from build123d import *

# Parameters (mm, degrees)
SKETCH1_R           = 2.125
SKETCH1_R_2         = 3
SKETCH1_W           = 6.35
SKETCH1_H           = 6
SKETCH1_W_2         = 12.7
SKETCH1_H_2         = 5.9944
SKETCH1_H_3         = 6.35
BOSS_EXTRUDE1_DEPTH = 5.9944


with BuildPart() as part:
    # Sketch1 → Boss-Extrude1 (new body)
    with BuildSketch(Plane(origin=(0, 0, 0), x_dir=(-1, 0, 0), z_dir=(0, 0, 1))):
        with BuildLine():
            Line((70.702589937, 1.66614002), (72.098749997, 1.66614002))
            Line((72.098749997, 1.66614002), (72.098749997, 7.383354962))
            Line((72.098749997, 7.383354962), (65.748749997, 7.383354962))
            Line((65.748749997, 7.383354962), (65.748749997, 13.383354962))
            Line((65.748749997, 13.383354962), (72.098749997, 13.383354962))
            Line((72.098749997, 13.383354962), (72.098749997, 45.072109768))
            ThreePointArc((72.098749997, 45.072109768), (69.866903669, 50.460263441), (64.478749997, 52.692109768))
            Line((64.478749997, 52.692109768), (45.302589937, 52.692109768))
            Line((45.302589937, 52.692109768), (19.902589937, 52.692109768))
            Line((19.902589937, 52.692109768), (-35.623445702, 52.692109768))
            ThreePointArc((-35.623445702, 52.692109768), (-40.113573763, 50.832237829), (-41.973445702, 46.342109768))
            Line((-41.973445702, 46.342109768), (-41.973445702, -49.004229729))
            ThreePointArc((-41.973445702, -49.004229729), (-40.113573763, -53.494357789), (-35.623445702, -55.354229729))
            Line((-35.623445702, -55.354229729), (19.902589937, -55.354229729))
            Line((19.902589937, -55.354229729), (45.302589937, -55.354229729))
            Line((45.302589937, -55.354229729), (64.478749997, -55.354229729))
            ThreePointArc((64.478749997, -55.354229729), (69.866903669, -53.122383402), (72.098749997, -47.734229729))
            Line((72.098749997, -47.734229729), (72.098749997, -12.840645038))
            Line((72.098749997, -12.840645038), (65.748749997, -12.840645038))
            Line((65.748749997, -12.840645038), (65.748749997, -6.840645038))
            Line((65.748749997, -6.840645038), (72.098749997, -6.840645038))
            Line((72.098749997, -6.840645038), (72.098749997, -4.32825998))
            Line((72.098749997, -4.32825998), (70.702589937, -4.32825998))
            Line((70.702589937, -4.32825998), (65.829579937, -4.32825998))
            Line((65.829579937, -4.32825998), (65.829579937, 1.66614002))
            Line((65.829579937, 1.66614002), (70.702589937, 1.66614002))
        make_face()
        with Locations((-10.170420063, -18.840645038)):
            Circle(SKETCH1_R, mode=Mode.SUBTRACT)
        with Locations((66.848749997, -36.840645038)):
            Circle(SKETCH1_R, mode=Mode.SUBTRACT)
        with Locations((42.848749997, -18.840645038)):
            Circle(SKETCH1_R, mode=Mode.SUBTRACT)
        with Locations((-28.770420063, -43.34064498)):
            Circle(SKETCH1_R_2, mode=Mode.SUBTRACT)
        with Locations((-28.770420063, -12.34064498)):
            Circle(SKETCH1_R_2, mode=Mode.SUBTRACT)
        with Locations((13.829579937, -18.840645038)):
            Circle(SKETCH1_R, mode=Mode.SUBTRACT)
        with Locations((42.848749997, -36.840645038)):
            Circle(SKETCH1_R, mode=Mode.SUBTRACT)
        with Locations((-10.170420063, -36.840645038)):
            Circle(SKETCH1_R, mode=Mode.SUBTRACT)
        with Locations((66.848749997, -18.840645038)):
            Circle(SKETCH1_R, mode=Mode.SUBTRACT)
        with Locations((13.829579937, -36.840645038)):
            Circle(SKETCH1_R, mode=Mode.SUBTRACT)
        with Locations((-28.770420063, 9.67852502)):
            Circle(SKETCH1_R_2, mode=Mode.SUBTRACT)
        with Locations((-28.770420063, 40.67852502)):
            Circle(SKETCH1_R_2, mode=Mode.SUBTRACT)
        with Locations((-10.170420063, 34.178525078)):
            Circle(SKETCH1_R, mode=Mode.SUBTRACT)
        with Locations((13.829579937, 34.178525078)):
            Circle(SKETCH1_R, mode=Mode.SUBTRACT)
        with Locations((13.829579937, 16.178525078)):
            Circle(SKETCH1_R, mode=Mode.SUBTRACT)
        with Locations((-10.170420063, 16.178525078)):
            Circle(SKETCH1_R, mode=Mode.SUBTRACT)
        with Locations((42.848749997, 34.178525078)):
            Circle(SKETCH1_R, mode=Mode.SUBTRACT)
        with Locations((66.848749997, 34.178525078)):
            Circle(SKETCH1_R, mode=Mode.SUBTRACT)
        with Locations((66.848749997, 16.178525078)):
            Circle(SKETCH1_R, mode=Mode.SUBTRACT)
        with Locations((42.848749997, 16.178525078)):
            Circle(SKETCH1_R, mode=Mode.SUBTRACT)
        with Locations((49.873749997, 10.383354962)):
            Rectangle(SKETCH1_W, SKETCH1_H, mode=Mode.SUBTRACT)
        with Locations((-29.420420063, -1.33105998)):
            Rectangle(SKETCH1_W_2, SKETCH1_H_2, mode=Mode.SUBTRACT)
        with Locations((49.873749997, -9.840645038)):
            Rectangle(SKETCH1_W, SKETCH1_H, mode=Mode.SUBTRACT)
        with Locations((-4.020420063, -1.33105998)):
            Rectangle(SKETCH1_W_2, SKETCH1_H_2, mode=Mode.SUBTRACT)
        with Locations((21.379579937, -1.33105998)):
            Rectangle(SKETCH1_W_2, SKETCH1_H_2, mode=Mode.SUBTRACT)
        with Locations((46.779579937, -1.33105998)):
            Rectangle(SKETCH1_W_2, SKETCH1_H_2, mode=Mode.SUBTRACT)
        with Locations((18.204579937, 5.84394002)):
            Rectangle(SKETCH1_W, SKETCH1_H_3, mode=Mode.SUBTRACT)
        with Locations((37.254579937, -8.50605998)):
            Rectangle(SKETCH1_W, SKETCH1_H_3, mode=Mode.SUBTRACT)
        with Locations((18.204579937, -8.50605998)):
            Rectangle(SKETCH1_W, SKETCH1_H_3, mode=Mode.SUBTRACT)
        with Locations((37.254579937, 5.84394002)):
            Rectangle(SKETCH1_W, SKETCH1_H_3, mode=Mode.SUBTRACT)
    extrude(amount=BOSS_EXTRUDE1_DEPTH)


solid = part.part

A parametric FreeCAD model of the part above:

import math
import FreeCAD as App
import Part
import Sketcher
from FreeCAD import Vector
Q = App.Units.Quantity

doc = App.newDocument("Part")
body = doc.addObject("PartDesign::Body", "Body")

sketch1 = doc.addObject("Sketcher::SketchObject", "Sketch")
body.addObject(sketch1)
sketch1.AttachmentSupport = (doc.XY_Plane, [""])
sketch1.MapMode = "FlatFace"
sketch1.addGeometry([
    Part.LineSegment(Vector(-72.1, -1.7, 0), Vector(-72.1, -7.4, 0)),
    Part.LineSegment(Vector(-72.1, -7.4, 0), Vector(-65.7, -7.4, 0)),
    Part.LineSegment(Vector(-65.7, -7.4, 0), Vector(-65.7, -13.4, 0)),
    Part.LineSegment(Vector(-65.7, -13.4, 0), Vector(-72.1, -13.4, 0)),
    Part.LineSegment(Vector(-72.1, -13.4, 0), Vector(-72.1, -45.1, 0)),
    Part.ArcOfCircle(Part.Circle(Vector(-64.5, -45.1, 0), Vector(0, 0, 1), 7.6), math.radians(180), math.radians(270)),
    Part.LineSegment(Vector(-64.5, -52.7, 0), Vector(35.6, -52.7, 0)),
    Part.ArcOfCircle(Part.Circle(Vector(35.6, -46.3, 0), Vector(0, 0, 1), 6.3), math.radians(-90), math.radians(0)),
    Part.LineSegment(Vector(42, -46.3, 0), Vector(42, 49, 0)),
    Part.ArcOfCircle(Part.Circle(Vector(35.6, 49, 0), Vector(0, 0, 1), 6.3), math.radians(0), math.radians(90)),
    Part.LineSegment(Vector(35.6, 55.4, 0), Vector(-64.5, 55.4, 0)),
    Part.ArcOfCircle(Part.Circle(Vector(-64.5, 47.7, 0), Vector(0, 0, 1), 7.6), math.radians(90), math.radians(180)),
    Part.LineSegment(Vector(-72.1, 47.7, 0), Vector(-72.1, 12.8, 0)),
    Part.LineSegment(Vector(-72.1, 12.8, 0), Vector(-65.7, 12.8, 0)),
    Part.LineSegment(Vector(-65.7, 12.8, 0), Vector(-65.7, 6.8, 0)),
    Part.LineSegment(Vector(-65.7, 6.8, 0), Vector(-72.1, 6.8, 0)),
    Part.LineSegment(Vector(-72.1, 6.8, 0), Vector(-72.1, 4.3, 0)),
    Part.LineSegment(Vector(-72.1, 4.3, 0), Vector(-65.8, 4.3, 0)),
    Part.LineSegment(Vector(-65.8, 4.3, 0), Vector(-65.8, -1.7, 0)),
    Part.LineSegment(Vector(-65.8, -1.7, 0), Vector(-72.1, -1.7, 0)),
    Part.Circle(Vector(28.8, 43.3, 0), Vector(0, 0, 1), 3),
    Part.Circle(Vector(10.2, 36.8, 0), Vector(0, 0, 1), 2.1),
    Part.Circle(Vector(-13.8, 36.8, 0), Vector(0, 0, 1), 2.1),
    Part.Circle(Vector(10.2, 18.8, 0), Vector(0, 0, 1), 2.1),
    Part.Circle(Vector(28.8, 12.3, 0), Vector(0, 0, 1), 3),
    Part.LineSegment(Vector(23.1, 4.3, 0), Vector(35.8, 4.3, 0)),
    Part.LineSegment(Vector(35.8, 4.3, 0), Vector(35.8, -1.7, 0)),
    Part.LineSegment(Vector(35.8, -1.7, 0), Vector(23.1, -1.7, 0)),
    Part.LineSegment(Vector(23.1, -1.7, 0), Vector(23.1, 4.3, 0)),
    Part.Circle(Vector(-13.8, 18.8, 0), Vector(0, 0, 1), 2.1),
    Part.LineSegment(Vector(-2.3, 4.3, 0), Vector(10.4, 4.3, 0)),
    Part.LineSegment(Vector(10.4, 4.3, 0), Vector(10.4, -1.7, 0)),
    Part.LineSegment(Vector(10.4, -1.7, 0), Vector(-2.3, -1.7, 0)),
    Part.LineSegment(Vector(-2.3, -1.7, 0), Vector(-2.3, 4.3, 0)),
    Part.Circle(Vector(-42.8, 36.8, 0), Vector(0, 0, 1), 2.1),
    Part.Circle(Vector(-66.8, 36.8, 0), Vector(0, 0, 1), 2.1),
    Part.LineSegment(Vector(-21.4, 11.7, 0), Vector(-15, 11.7, 0)),
    Part.LineSegment(Vector(-15, 11.7, 0), Vector(-15, 5.3, 0)),
    Part.LineSegment(Vector(-15, 5.3, 0), Vector(-21.4, 5.3, 0)),
    Part.LineSegment(Vector(-21.4, 5.3, 0), Vector(-21.4, 11.7, 0)),
    Part.LineSegment(Vector(-27.7, 4.3, 0), Vector(-15, 4.3, 0)),
    Part.LineSegment(Vector(-15, 4.3, 0), Vector(-15, -1.7, 0)),
    Part.LineSegment(Vector(-15, -1.7, 0), Vector(-27.7, -1.7, 0)),
    Part.LineSegment(Vector(-27.7, -1.7, 0), Vector(-27.7, 4.3, 0)),
    Part.LineSegment(Vector(-40.4, 11.7, 0), Vector(-34.1, 11.7, 0)),
    Part.LineSegment(Vector(-34.1, 11.7, 0), Vector(-34.1, 5.3, 0)),
    Part.LineSegment(Vector(-34.1, 5.3, 0), Vector(-40.4, 5.3, 0)),
    Part.LineSegment(Vector(-40.4, 5.3, 0), Vector(-40.4, 11.7, 0)),
    Part.Circle(Vector(-42.8, 18.8, 0), Vector(0, 0, 1), 2.1),
    Part.Circle(Vector(-66.8, 18.8, 0), Vector(0, 0, 1), 2.1),
    Part.LineSegment(Vector(-53, 12.8, 0), Vector(-46.7, 12.8, 0)),
    Part.LineSegment(Vector(-46.7, 12.8, 0), Vector(-46.7, 6.8, 0)),
    Part.LineSegment(Vector(-46.7, 6.8, 0), Vector(-53, 6.8, 0)),
    Part.LineSegment(Vector(-53, 6.8, 0), Vector(-53, 12.8, 0)),
    Part.LineSegment(Vector(-53.1, 4.3, 0), Vector(-40.4, 4.3, 0)),
    Part.LineSegment(Vector(-40.4, 4.3, 0), Vector(-40.4, -1.7, 0)),
    Part.LineSegment(Vector(-40.4, -1.7, 0), Vector(-53.1, -1.7, 0)),
    Part.LineSegment(Vector(-53.1, -1.7, 0), Vector(-53.1, 4.3, 0)),
    Part.Circle(Vector(28.8, -9.7, 0), Vector(0, 0, 1), 3),
    Part.Circle(Vector(10.2, -16.2, 0), Vector(0, 0, 1), 2.1),
    Part.Circle(Vector(-13.8, -16.2, 0), Vector(0, 0, 1), 2.1),
    Part.Circle(Vector(28.8, -40.7, 0), Vector(0, 0, 1), 3),
    Part.Circle(Vector(10.2, -34.2, 0), Vector(0, 0, 1), 2.1),
    Part.Circle(Vector(-13.8, -34.2, 0), Vector(0, 0, 1), 2.1),
    Part.LineSegment(Vector(-21.4, -2.7, 0), Vector(-15, -2.7, 0)),
    Part.LineSegment(Vector(-15, -2.7, 0), Vector(-15, -9, 0)),
    Part.LineSegment(Vector(-15, -9, 0), Vector(-21.4, -9, 0)),
    Part.LineSegment(Vector(-21.4, -9, 0), Vector(-21.4, -2.7, 0)),
    Part.LineSegment(Vector(-40.4, -2.7, 0), Vector(-34.1, -2.7, 0)),
    Part.LineSegment(Vector(-34.1, -2.7, 0), Vector(-34.1, -9, 0)),
    Part.LineSegment(Vector(-34.1, -9, 0), Vector(-40.4, -9, 0)),
    Part.LineSegment(Vector(-40.4, -9, 0), Vector(-40.4, -2.7, 0)),
    Part.LineSegment(Vector(-53, -7.4, 0), Vector(-46.7, -7.4, 0)),
    Part.LineSegment(Vector(-46.7, -7.4, 0), Vector(-46.7, -13.4, 0)),
    Part.LineSegment(Vector(-46.7, -13.4, 0), Vector(-53, -13.4, 0)),
    Part.LineSegment(Vector(-53, -13.4, 0), Vector(-53, -7.4, 0)),
    Part.Circle(Vector(-42.8, -16.2, 0), Vector(0, 0, 1), 2.1),
    Part.Circle(Vector(-66.8, -16.2, 0), Vector(0, 0, 1), 2.1),
    Part.Circle(Vector(-42.8, -34.2, 0), Vector(0, 0, 1), 2.1),
    Part.Circle(Vector(-66.8, -34.2, 0), Vector(0, 0, 1), 2.1),
], False)
sketch1.addConstraint([
    Sketcher.Constraint("Coincident", 0, 2, 1, 1),
    Sketcher.Constraint("Coincident", 1, 2, 2, 1),
    Sketcher.Constraint("Coincident", 2, 2, 3, 1),
    Sketcher.Constraint("Coincident", 3, 2, 4, 1),
    Sketcher.Constraint("Tangent", 4, 2, 5, 1),
    Sketcher.Constraint("Tangent", 5, 2, 6, 1),
    Sketcher.Constraint("Tangent", 6, 2, 7, 1),
    Sketcher.Constraint("Tangent", 7, 2, 8, 1),
    Sketcher.Constraint("Tangent", 8, 2, 9, 1),
    Sketcher.Constraint("Tangent", 9, 2, 10, 1),
    Sketcher.Constraint("Tangent", 10, 2, 11, 1),
    Sketcher.Constraint("Tangent", 11, 2, 12, 1),
    Sketcher.Constraint("Coincident", 12, 2, 13, 1),
    Sketcher.Constraint("Coincident", 13, 2, 14, 1),
    Sketcher.Constraint("Coincident", 14, 2, 15, 1),
    Sketcher.Constraint("Coincident", 15, 2, 16, 1),
    Sketcher.Constraint("Coincident", 16, 2, 17, 1),
    Sketcher.Constraint("Coincident", 17, 2, 18, 1),
    Sketcher.Constraint("Coincident", 18, 2, 19, 1),
    Sketcher.Constraint("Coincident", 19, 2, 0, 1),
    Sketcher.Constraint("Coincident", 25, 2, 26, 1),
    Sketcher.Constraint("Coincident", 26, 2, 27, 1),
    Sketcher.Constraint("Coincident", 27, 2, 28, 1),
    Sketcher.Constraint("Coincident", 28, 2, 25, 1),
    Sketcher.Constraint("Coincident", 30, 2, 31, 1),
    Sketcher.Constraint("Coincident", 31, 2, 32, 1),
    Sketcher.Constraint("Coincident", 32, 2, 33, 1),
    Sketcher.Constraint("Coincident", 33, 2, 30, 1),
    Sketcher.Constraint("Coincident", 36, 2, 37, 1),
    Sketcher.Constraint("Coincident", 37, 2, 38, 1),
    Sketcher.Constraint("Coincident", 38, 2, 39, 1),
    Sketcher.Constraint("Coincident", 39, 2, 36, 1),
    Sketcher.Constraint("Coincident", 40, 2, 41, 1),
    Sketcher.Constraint("Coincident", 41, 2, 42, 1),
    Sketcher.Constraint("Coincident", 42, 2, 43, 1),
    Sketcher.Constraint("Coincident", 43, 2, 40, 1),
    Sketcher.Constraint("Coincident", 44, 2, 45, 1),
    Sketcher.Constraint("Coincident", 45, 2, 46, 1),
    Sketcher.Constraint("Coincident", 46, 2, 47, 1),
    Sketcher.Constraint("Coincident", 47, 2, 44, 1),
    Sketcher.Constraint("Coincident", 50, 2, 51, 1),
    Sketcher.Constraint("Coincident", 51, 2, 52, 1),
    Sketcher.Constraint("Coincident", 52, 2, 53, 1),
    Sketcher.Constraint("Coincident", 53, 2, 50, 1),
    Sketcher.Constraint("Coincident", 54, 2, 55, 1),
    Sketcher.Constraint("Coincident", 55, 2, 56, 1),
    Sketcher.Constraint("Coincident", 56, 2, 57, 1),
    Sketcher.Constraint("Coincident", 57, 2, 54, 1),
    Sketcher.Constraint("Coincident", 64, 2, 65, 1),
    Sketcher.Constraint("Coincident", 65, 2, 66, 1),
    Sketcher.Constraint("Coincident", 66, 2, 67, 1),
    Sketcher.Constraint("Coincident", 67, 2, 64, 1),
    Sketcher.Constraint("Coincident", 68, 2, 69, 1),
    Sketcher.Constraint("Coincident", 69, 2, 70, 1),
    Sketcher.Constraint("Coincident", 70, 2, 71, 1),
    Sketcher.Constraint("Coincident", 71, 2, 68, 1),
    Sketcher.Constraint("Coincident", 72, 2, 73, 1),
    Sketcher.Constraint("Coincident", 73, 2, 74, 1),
    Sketcher.Constraint("Coincident", 74, 2, 75, 1),
    Sketcher.Constraint("Coincident", 75, 2, 72, 1),
    Sketcher.Constraint("Vertical", 0),
    Sketcher.Constraint("Horizontal", 1),
    Sketcher.Constraint("Vertical", 2),
    Sketcher.Constraint("Horizontal", 3),
    Sketcher.Constraint("Vertical", 4),
    Sketcher.Constraint("Horizontal", 6),
    Sketcher.Constraint("Vertical", 8),
    Sketcher.Constraint("Horizontal", 10),
    Sketcher.Constraint("Vertical", 12),
    Sketcher.Constraint("Horizontal", 13),
    Sketcher.Constraint("Vertical", 14),
    Sketcher.Constraint("Horizontal", 15),
    Sketcher.Constraint("Vertical", 16),
    Sketcher.Constraint("Horizontal", 17),
    Sketcher.Constraint("Vertical", 18),
    Sketcher.Constraint("Horizontal", 19),
    Sketcher.Constraint("Horizontal", 25),
    Sketcher.Constraint("Vertical", 26),
    Sketcher.Constraint("Horizontal", 27),
    Sketcher.Constraint("Vertical", 28),
    Sketcher.Constraint("Horizontal", 30),
    Sketcher.Constraint("Vertical", 31),
    Sketcher.Constraint("Horizontal", 32),
    Sketcher.Constraint("Vertical", 33),
    Sketcher.Constraint("Horizontal", 36),
    Sketcher.Constraint("Vertical", 37),
    Sketcher.Constraint("Horizontal", 38),
    Sketcher.Constraint("Vertical", 39),
    Sketcher.Constraint("Horizontal", 40),
    Sketcher.Constraint("Vertical", 41),
    Sketcher.Constraint("Horizontal", 42),
    Sketcher.Constraint("Vertical", 43),
    Sketcher.Constraint("Horizontal", 44),
    Sketcher.Constraint("Vertical", 45),
    Sketcher.Constraint("Horizontal", 46),
    Sketcher.Constraint("Vertical", 47),
    Sketcher.Constraint("Horizontal", 50),
    Sketcher.Constraint("Vertical", 51),
    Sketcher.Constraint("Horizontal", 52),
    Sketcher.Constraint("Vertical", 53),
    Sketcher.Constraint("Horizontal", 54),
    Sketcher.Constraint("Vertical", 55),
    Sketcher.Constraint("Horizontal", 56),
    Sketcher.Constraint("Vertical", 57),
    Sketcher.Constraint("Horizontal", 64),
    Sketcher.Constraint("Vertical", 65),
    Sketcher.Constraint("Horizontal", 66),
    Sketcher.Constraint("Vertical", 67),
    Sketcher.Constraint("Horizontal", 68),
    Sketcher.Constraint("Vertical", 69),
    Sketcher.Constraint("Horizontal", 70),
    Sketcher.Constraint("Vertical", 71),
    Sketcher.Constraint("Horizontal", 72),
    Sketcher.Constraint("Vertical", 73),
    Sketcher.Constraint("Horizontal", 74),
    Sketcher.Constraint("Vertical", 75),
    Sketcher.Constraint("Equal", 7, 9),
    Sketcher.Constraint("Equal", 5, 11),
    Sketcher.Constraint("Equal", 21, 22),
    Sketcher.Constraint("Equal", 22, 23),
    Sketcher.Constraint("Equal", 20, 24),
    Sketcher.Constraint("Equal", 23, 29),
    Sketcher.Constraint("Equal", 29, 34),
    Sketcher.Constraint("Equal", 34, 35),
    Sketcher.Constraint("Equal", 35, 48),
    Sketcher.Constraint("Equal", 48, 49),
    Sketcher.Constraint("Equal", 24, 58),
    Sketcher.Constraint("Equal", 49, 59),
    Sketcher.Constraint("Equal", 59, 60),
    Sketcher.Constraint("Equal", 58, 61),
    Sketcher.Constraint("Equal", 60, 62),
    Sketcher.Constraint("Equal", 62, 63),
    Sketcher.Constraint("Equal", 63, 76),
    Sketcher.Constraint("Equal", 76, 77),
    Sketcher.Constraint("Equal", 77, 78),
    Sketcher.Constraint("Equal", 78, 79),
    Sketcher.Constraint("Horizontal", 21, 3, 22, 3),
    Sketcher.Constraint("Horizontal", 23, 3, 29, 3),
    Sketcher.Constraint("Horizontal", 22, 3, 34, 3),
    Sketcher.Constraint("Horizontal", 34, 3, 35, 3),
    Sketcher.Constraint("Horizontal", 29, 3, 48, 3),
    Sketcher.Constraint("Horizontal", 48, 3, 49, 3),
    Sketcher.Constraint("Horizontal", 59, 3, 60, 3),
    Sketcher.Constraint("Horizontal", 62, 3, 63, 3),
    Sketcher.Constraint("Horizontal", 60, 3, 76, 3),
    Sketcher.Constraint("Horizontal", 76, 3, 77, 3),
    Sketcher.Constraint("Horizontal", 63, 3, 78, 3),
    Sketcher.Constraint("Horizontal", 78, 3, 79, 3),
    Sketcher.Constraint("Horizontal", 17, 2, 25, 2),
    Sketcher.Constraint("Horizontal", 19, 2, 26, 2),
    Sketcher.Constraint("Horizontal", 28, 2, 30, 2),
    Sketcher.Constraint("Horizontal", 27, 2, 31, 2),
    Sketcher.Constraint("Horizontal", 33, 2, 40, 2),
    Sketcher.Constraint("Horizontal", 32, 2, 41, 2),
    Sketcher.Constraint("Horizontal", 39, 2, 44, 2),
    Sketcher.Constraint("Horizontal", 38, 2, 45, 2),
    Sketcher.Constraint("Horizontal", 13, 2, 50, 2),
    Sketcher.Constraint("Horizontal", 15, 2, 51, 2),
    Sketcher.Constraint("Horizontal", 43, 2, 54, 2),
    Sketcher.Constraint("Horizontal", 42, 2, 55, 2),
    Sketcher.Constraint("Horizontal", 67, 2, 68, 2),
    Sketcher.Constraint("Horizontal", 66, 2, 69, 2),
    Sketcher.Constraint("Horizontal", 1, 2, 72, 2),
    Sketcher.Constraint("Horizontal", 3, 2, 73, 2),
    Sketcher.Constraint("Vertical", 5, 3, 11, 3),
    Sketcher.Constraint("Vertical", 21, 3, 23, 3),
    Sketcher.Constraint("Vertical", 20, 3, 24, 3),
    Sketcher.Constraint("Vertical", 22, 3, 29, 3),
    Sketcher.Constraint("Vertical", 34, 3, 48, 3),
    Sketcher.Constraint("Vertical", 35, 3, 49, 3),
    Sketcher.Constraint("Vertical", 24, 3, 58, 3),
    Sketcher.Constraint("Vertical", 23, 3, 59, 3),
    Sketcher.Constraint("Vertical", 29, 3, 60, 3),
    Sketcher.Constraint("Vertical", 58, 3, 61, 3),
    Sketcher.Constraint("Vertical", 59, 3, 62, 3),
    Sketcher.Constraint("Vertical", 60, 3, 63, 3),
    Sketcher.Constraint("Vertical", 48, 3, 76, 3),
    Sketcher.Constraint("Vertical", 49, 3, 77, 3),
    Sketcher.Constraint("Vertical", 76, 3, 78, 3),
    Sketcher.Constraint("Vertical", 77, 3, 79, 3),
    Sketcher.Constraint("Vertical", 0, 2, 3, 2),
    Sketcher.Constraint("Vertical", 2, 2, 13, 2),
    Sketcher.Constraint("Vertical", 12, 2, 15, 2),
    Sketcher.Constraint("Vertical", 37, 2, 40, 2),
    Sketcher.Constraint("Vertical", 47, 2, 54, 2),
    Sketcher.Constraint("Vertical", 41, 2, 64, 2),
    Sketcher.Constraint("Vertical", 39, 2, 66, 2),
    Sketcher.Constraint("Vertical", 45, 2, 68, 2),
    Sketcher.Constraint("Vertical", 55, 2, 70, 2),
    Sketcher.Constraint("Vertical", 51, 2, 72, 2),
    Sketcher.Constraint("Vertical", 53, 2, 74, 2),
    Sketcher.Constraint("Equal", 27, 30),
    Sketcher.Constraint("Equal", 15, 36),
    Sketcher.Constraint("Equal", 32, 40),
    Sketcher.Constraint("Equal", 38, 44),
    Sketcher.Constraint("Equal", 46, 50),
    Sketcher.Constraint("Equal", 42, 54),
    Sketcher.Constraint("Equal", 2, 14),
    Sketcher.Constraint("Equal", 74, 37),
    Sketcher.Constraint("Equal", 47, 65),
    Sketcher.Constraint("Radius", 5, Q("0.3 in")),
    Sketcher.Constraint("Radius", 7, Q("0.25 in")),
    Sketcher.Constraint("DistanceX", 25, 1, 25, 2, Q("0.5 in")),
    Sketcher.Constraint("DistanceX", 1, 1, 1, 2, Q("0.25 in")),
    Sketcher.Constraint("Diameter", 20, 6.0),
    Sketcher.Constraint("Diameter", 21, 4.25),
    Sketcher.Constraint("DistanceY", 18, 2, 18, 1, Q("0.236 in")),
    Sketcher.Constraint("DistanceY", 2, 2, 2, 1, 6.0),
    Sketcher.Constraint("DistanceX", 17, 1, 17, 2, 6.26917),
    Sketcher.Constraint("DistanceY", 8, 1, 8, 2, 95.346339),
    Sketcher.Constraint("DistanceX", 6, 1, 6, 2, 100.102196),
    Sketcher.Constraint("DistanceY", 0, 2, 0, 1, 5.717215),
    Sketcher.Constraint("DistanceY", 4, 2, 4, 1, 31.688755),
    Sketcher.Constraint("DistanceY", 12, 2, 12, 1, 34.893585),
    Sketcher.Constraint("DistanceX", 5, 3, -1, 1, 64.47875),
    Sketcher.Constraint("DistanceY", 5, 3, -1, 1, 45.07211),
    Sketcher.Constraint("DistanceX", -1, 1, 20, 3, 28.77042),
    Sketcher.Constraint("DistanceX", -1, 1, 21, 3, 10.17042),
    Sketcher.Constraint("DistanceX", 22, 3, -1, 1, 13.82958),
    Sketcher.Constraint("DistanceX", 34, 3, -1, 1, 42.84875),
    Sketcher.Constraint("DistanceX", 35, 3, -1, 1, 66.84875),
    Sketcher.Constraint("DistanceX", -1, 1, 25, 2, 35.77042),
    Sketcher.Constraint("DistanceX", -1, 1, 30, 2, 10.37042),
    Sketcher.Constraint("DistanceX", 36, 2, -1, 1, 15.02958),
    Sketcher.Constraint("DistanceY", -1, 1, 36, 2, 11.68106),
    Sketcher.Constraint("DistanceX", 44, 2, -1, 1, 34.07958),
    Sketcher.Constraint("DistanceX", 50, 2, -1, 1, 46.69875),
    Sketcher.Constraint("DistanceY", 64, 2, -1, 1, 2.66894),
    Sketcher.Constraint("DistanceY", -1, 1, 20, 3, 43.340645),
    Sketcher.Constraint("DistanceY", -1, 1, 21, 3, 36.840645),
    Sketcher.Constraint("DistanceY", -1, 1, 23, 3, 18.840645),
    Sketcher.Constraint("DistanceY", -1, 1, 24, 3, 12.340645),
    Sketcher.Constraint("DistanceY", 58, 3, -1, 1, 9.678525),
    Sketcher.Constraint("DistanceY", 59, 3, -1, 1, 16.178525),
    Sketcher.Constraint("DistanceY", 61, 3, -1, 1, 40.678525),
    Sketcher.Constraint("DistanceY", 62, 3, -1, 1, 34.178525),
])
pad1 = doc.addObject("PartDesign::Pad", "Pad")
body.addObject(pad1)
pad1.Profile = sketch1
pad1.Length = Q("0.236 in")

doc.recompute()
